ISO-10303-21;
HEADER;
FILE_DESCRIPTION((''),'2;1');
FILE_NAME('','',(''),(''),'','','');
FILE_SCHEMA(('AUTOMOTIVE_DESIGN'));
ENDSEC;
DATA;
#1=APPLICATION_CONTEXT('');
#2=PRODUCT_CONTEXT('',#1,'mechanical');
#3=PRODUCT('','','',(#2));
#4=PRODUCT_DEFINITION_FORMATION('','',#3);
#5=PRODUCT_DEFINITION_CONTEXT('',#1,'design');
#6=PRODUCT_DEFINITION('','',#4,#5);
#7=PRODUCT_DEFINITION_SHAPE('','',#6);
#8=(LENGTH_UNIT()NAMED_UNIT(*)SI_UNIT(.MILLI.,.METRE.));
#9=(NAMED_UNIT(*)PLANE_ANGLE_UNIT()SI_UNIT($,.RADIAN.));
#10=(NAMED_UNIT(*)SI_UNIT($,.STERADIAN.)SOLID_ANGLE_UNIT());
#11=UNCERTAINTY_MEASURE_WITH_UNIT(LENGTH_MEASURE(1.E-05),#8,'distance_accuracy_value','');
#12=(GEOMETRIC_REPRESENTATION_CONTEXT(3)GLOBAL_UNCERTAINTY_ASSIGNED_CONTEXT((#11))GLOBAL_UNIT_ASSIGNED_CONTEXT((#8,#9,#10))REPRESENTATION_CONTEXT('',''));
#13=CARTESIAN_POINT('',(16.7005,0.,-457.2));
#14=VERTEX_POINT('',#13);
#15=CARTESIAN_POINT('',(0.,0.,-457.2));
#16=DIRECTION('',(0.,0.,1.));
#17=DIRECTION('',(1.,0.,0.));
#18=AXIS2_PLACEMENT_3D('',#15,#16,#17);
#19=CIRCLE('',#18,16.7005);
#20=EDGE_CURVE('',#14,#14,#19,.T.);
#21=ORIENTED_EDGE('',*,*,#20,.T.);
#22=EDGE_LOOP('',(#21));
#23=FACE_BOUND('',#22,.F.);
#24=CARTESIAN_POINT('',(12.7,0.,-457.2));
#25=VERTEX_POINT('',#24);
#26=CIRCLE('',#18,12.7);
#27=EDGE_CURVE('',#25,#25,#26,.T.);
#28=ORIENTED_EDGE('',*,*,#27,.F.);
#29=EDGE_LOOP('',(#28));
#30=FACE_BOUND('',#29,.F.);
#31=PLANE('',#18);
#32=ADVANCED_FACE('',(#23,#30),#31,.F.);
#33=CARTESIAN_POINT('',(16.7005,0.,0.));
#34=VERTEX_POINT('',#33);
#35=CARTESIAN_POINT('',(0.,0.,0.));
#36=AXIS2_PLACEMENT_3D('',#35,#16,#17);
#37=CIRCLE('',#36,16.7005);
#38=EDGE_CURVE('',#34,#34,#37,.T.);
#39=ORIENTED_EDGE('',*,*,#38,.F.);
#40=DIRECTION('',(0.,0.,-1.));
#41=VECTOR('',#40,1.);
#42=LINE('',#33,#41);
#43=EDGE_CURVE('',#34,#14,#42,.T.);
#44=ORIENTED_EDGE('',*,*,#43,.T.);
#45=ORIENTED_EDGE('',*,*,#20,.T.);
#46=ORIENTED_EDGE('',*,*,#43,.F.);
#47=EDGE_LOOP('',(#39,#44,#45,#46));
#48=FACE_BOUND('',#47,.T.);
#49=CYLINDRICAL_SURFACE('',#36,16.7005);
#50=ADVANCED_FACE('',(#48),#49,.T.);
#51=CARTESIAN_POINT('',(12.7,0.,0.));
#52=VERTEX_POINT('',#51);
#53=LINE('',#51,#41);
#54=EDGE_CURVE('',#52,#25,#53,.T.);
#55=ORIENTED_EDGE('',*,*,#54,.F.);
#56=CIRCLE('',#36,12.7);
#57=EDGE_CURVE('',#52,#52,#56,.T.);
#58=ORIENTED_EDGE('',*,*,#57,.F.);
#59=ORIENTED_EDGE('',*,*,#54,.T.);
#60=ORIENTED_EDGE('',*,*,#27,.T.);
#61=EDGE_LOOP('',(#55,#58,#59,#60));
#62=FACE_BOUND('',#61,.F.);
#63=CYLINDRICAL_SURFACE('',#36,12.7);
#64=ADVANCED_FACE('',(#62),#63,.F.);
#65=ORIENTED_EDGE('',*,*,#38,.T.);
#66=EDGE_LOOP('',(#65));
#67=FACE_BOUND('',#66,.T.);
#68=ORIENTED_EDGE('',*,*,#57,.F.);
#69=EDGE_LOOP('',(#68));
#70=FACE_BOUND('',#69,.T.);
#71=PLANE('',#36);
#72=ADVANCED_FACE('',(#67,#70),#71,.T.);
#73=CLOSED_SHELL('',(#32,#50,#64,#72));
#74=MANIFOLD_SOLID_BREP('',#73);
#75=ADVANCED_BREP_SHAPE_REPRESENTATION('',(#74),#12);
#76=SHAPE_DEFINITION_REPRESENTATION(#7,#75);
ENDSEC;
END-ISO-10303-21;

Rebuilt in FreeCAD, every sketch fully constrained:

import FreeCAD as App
import Part
import Sketcher

V = App.Vector
Q = App.Units.Quantity

doc = App.newDocument("Part")
body = doc.addObject("PartDesign::Body", "Body")

sketch1 = doc.addObject("Sketcher::SketchObject", "Sketch")
body.addObject(sketch1)
sketch1.AttachmentSupport = (doc.XY_Plane, [""])
sketch1.MapMode = "FlatFace"
sketch1.addGeometry([
    Part.Circle(V(0, 0, 0), V(0, 0, 1), 17),
    Part.Circle(V(0, 0, 0), V(0, 0, 1), 13),
], False)
sketch1.addConstraint([
    Sketcher.Constraint("Coincident", 0, 3, -1, 1),
    Sketcher.Constraint("Coincident", 1, 3, -1, 1),
    Sketcher.Constraint("Diameter", 1, Q("1 in")),
    Sketcher.Constraint("Diameter", 0, Q("1.315 in")),
])
pad1 = doc.addObject("PartDesign::Pad", "Pad")
body.addObject(pad1)
pad1.Profile = sketch1
pad1.Length = Q("18 in")
pad1.Reversed = True

doc.recompute()
